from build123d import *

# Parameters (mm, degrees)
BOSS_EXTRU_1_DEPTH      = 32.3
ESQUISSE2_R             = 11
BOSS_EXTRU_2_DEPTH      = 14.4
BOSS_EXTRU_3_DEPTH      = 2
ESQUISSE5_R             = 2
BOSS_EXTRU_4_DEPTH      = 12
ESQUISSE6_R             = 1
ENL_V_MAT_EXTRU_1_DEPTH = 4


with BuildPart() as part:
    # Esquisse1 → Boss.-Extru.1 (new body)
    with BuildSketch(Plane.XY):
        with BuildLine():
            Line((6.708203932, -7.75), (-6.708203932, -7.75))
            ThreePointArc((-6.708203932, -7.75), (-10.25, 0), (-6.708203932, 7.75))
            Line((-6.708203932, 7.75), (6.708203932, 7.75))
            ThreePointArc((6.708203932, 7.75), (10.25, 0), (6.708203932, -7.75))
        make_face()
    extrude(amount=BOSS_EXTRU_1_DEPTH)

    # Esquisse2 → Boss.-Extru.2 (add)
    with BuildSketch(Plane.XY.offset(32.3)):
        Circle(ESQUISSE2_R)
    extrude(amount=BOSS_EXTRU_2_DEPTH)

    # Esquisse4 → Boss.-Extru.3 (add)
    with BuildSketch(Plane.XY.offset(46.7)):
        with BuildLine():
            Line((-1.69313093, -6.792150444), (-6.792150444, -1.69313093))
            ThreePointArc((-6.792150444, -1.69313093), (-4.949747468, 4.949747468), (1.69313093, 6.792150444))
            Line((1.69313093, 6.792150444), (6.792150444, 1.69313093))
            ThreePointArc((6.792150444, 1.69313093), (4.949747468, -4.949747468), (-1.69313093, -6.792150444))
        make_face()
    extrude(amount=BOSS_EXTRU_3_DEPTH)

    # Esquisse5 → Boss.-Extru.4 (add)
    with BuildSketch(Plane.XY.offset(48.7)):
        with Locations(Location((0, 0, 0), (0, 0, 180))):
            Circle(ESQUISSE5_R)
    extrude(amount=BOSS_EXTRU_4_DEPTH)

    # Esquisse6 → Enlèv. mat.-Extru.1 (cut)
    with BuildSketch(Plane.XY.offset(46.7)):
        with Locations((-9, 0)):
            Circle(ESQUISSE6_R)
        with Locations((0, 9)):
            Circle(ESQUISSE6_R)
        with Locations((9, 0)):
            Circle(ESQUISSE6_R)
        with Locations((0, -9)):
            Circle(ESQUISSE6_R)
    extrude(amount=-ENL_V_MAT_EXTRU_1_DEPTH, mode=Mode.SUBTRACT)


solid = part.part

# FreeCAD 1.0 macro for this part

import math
import FreeCAD as App
import Part
import Sketcher
from FreeCAD import Vector
Q = App.Units.Quantity

doc = App.newDocument("Part")
params = doc.addObject("Spreadsheet::Sheet", "Params")
for row, (alias, value) in enumerate([
    ("sketch1_radius", "10.25 mm"),
    ("pad1_length", "32.3 mm"),
    ("sketch2_diameter", "22 mm"),
    ("pad2_length", "14.4 mm"),
    ("sketch3_radius", "7 mm"),
    ("pad3_length", "2 mm"),
    ("sketch4_diameter", "4 mm"),
    ("pad4_length", "12 mm"),
    ("sketch5_diameter", "2 mm"),
    ("pocket1_length", "4 mm"),
], start=1):
    params.set(f"A{row}", alias)
    params.set(f"B{row}", "=" + value)
    params.setAlias(f"B{row}", alias)

body = doc.addObject("PartDesign::Body", "Body")

# Sketch on XY plane
sketch1 = body.newObject("Sketcher::SketchObject", "Sketch")
sketch1.AttachmentSupport = (doc.getObject("XY_Plane"), [""])
sketch1.MapMode = "FlatFace"
sketch1.addGeometry([
    Part.LineSegment(Vector(-7, -8, 0), Vector(7, -8, 0)),
    Part.ArcOfCircle(Part.Circle(Vector(0, 0, 0), Vector(0, 0, 1), 10), math.radians(-49), math.radians(49)),
    Part.LineSegment(Vector(7, 8, 0), Vector(-7, 8, 0)),
    Part.ArcOfCircle(Part.Circle(Vector(0, 0, 0), Vector(0, 0, 1), 10), math.radians(131), math.radians(229)),
], False)
sketch1.addConstraint([
    Sketcher.Constraint("Coincident", 0, 2, 1, 1),
    Sketcher.Constraint("Coincident", 1, 2, 2, 1),
    Sketcher.Constraint("Coincident", 2, 2, 3, 1),
    Sketcher.Constraint("Coincident", 3, 2, 0, 1),
    Sketcher.Constraint("Horizontal", 0),
    Sketcher.Constraint("Horizontal", 2),
    Sketcher.Constraint("Coincident", 1, 3, -1, 1),
    Sketcher.Constraint("Coincident", 3, 3, -1, 1),
    Sketcher.Constraint("Equal", 1, 3),
    Sketcher.Constraint("Vertical", 0, 2, 1, 2),
    Sketcher.Constraint("Radius", 1, Q("10.25 mm")),
    Sketcher.Constraint("DistanceY", 0, 2, 1, 2, Q("15.5 mm")),
])
sketch1.setExpression("Constraints[10]", "Params.sketch1_radius")
pad1 = body.newObject("PartDesign::Pad", "Pad")
pad1.Profile = sketch1
pad1.setExpression("Length", "Params.pad1_length")

# Sketch on XY plane
sketch2 = body.newObject("Sketcher::SketchObject", "Sketch001")
sketch2.AttachmentSupport = (doc.getObject("XY_Plane"), [""])
sketch2.MapMode = "FlatFace"
sketch2.AttachmentOffset = App.Placement(Vector(0, 0, 32.3), App.Rotation())
sketch2.addGeometry(Part.Circle(Vector(0, 0, 0), Vector(0, 0, 1), 11), False)
sketch2.addConstraint([
    Sketcher.Constraint("Coincident", 0, 3, -1, 1),
    Sketcher.Constraint("Diameter", 0, Q("22 mm")),
])
sketch2.setExpression("Constraints[1]", "Params.sketch2_diameter")
pad2 = body.newObject("PartDesign::Pad", "Pad001")
pad2.Profile = sketch2
pad2.setExpression("Length", "Params.pad2_length")

# Sketch on XY plane
sketch3 = body.newObject("Sketcher::SketchObject", "Sketch002")
sketch3.AttachmentSupport = (doc.getObject("XY_Plane"), [""])
sketch3.MapMode = "FlatFace"
sketch3.AttachmentOffset = App.Placement(Vector(0, 0, 46.7), App.Rotation())
sketch3.addGeometry([
    Part.LineSegment(Vector(-7, -2, 0), Vector(-2, -7, 0)),
    Part.ArcOfCircle(Part.Circle(Vector(0, 0, 0), Vector(0, 0, 1), 7), math.radians(-104), math.radians(14)),
    Part.LineSegment(Vector(7, 2, 0), Vector(2, 7, 0)),
    Part.ArcOfCircle(Part.Circle(Vector(0, 0, 0), Vector(0, 0, 1), 7), math.radians(76), math.radians(194)),
], False)
sketch3.addConstraint([
    Sketcher.Constraint("Coincident", 0, 2, 1, 1),
    Sketcher.Constraint("Coincident", 1, 2, 2, 1),
    Sketcher.Constraint("Coincident", 2, 2, 3, 1),
    Sketcher.Constraint("Coincident", 3, 2, 0, 1),
    Sketcher.Constraint("Coincident", 1, 3, -1, 1),
    Sketcher.Constraint("Coincident", 3, 3, -1, 1),
    Sketcher.Constraint("Equal", 1, 3),
    Sketcher.Constraint("Parallel", 0, 2),
    Sketcher.Constraint("Equal", 0, 2),
    Sketcher.Constraint("Radius", 1, Q("7 mm")),
    Sketcher.Constraint("Angle", 0, Q("-45 deg")),
    Sketcher.Constraint("DistanceY", 0, 2, 2, 2, Q("13.584301 mm")),
])
sketch3.setExpression("Constraints[9]", "Params.sketch3_radius")
pad3 = body.newObject("PartDesign::Pad", "Pad002")
pad3.Profile = sketch3
pad3.setExpression("Length", "Params.pad3_length")

# Sketch on XY plane
sketch4 = body.newObject("Sketcher::SketchObject", "Sketch003")
sketch4.AttachmentSupport = (doc.getObject("XY_Plane"), [""])
sketch4.MapMode = "FlatFace"
sketch4.AttachmentOffset = App.Placement(Vector(0, 0, 48.7), App.Rotation())
sketch4.addGeometry(Part.Circle(Vector(0, 0, 0), Vector(0, 0, 1), 2), False)
sketch4.addConstraint([
    Sketcher.Constraint("Coincident", 0, 3, -1, 1),
    Sketcher.Constraint("Diameter", 0, Q("4 mm")),
])
sketch4.setExpression("Constraints[1]", "Params.sketch4_diameter")
pad4 = body.newObject("PartDesign::Pad", "Pad003")
pad4.Profile = sketch4
pad4.setExpression("Length", "Params.pad4_length")

# Sketch on XY plane
sketch5 = body.newObject("Sketcher::SketchObject", "Sketch004")
sketch5.AttachmentSupport = (doc.getObject("XY_Plane"), [""])
sketch5.MapMode = "FlatFace"
sketch5.AttachmentOffset = App.Placement(Vector(0, 0, 46.7), App.Rotation())
sketch5.addGeometry([
    Part.Circle(Vector(-9, 0, 0), Vector(0, 0, 1), 1),
    Part.Circle(Vector(0, 9, 0), Vector(0, 0, 1), 1),
    Part.Circle(Vector(9, 0, 0), Vector(0, 0, 1), 1),
    Part.Circle(Vector(0, -9, 0), Vector(0, 0, 1), 1),
], False)
sketch5.addConstraint([
    Sketcher.Constraint("Equal", 0, 1),
    Sketcher.Constraint("Equal", 1, 2),
    Sketcher.Constraint("Equal", 2, 3),
    Sketcher.Constraint("Symmetric", 0, 3, 2, 3, -1, 1),
    Sketcher.Constraint("Symmetric", 1, 3, 3, 3, -1, 1),
    Sketcher.Constraint("PointOnObject", 0, 3, -1),
    Sketcher.Constraint("PointOnObject", 1, 3, -2),
    Sketcher.Constraint("Diameter", 0, Q("2 mm")),
    Sketcher.Constraint("DistanceX", 0, 3, -1, 1, Q("9 mm")),
    Sketcher.Constraint("DistanceY", -1, 1, 1, 3, Q("9 mm")),
])
sketch5.setExpression("Constraints[7]", "Params.sketch5_diameter")
pocket1 = body.newObject("PartDesign::Pocket", "Pocket")
pocket1.Profile = sketch5
pocket1.setExpression("Length", "Params.pocket1_length")

doc.recompute()
